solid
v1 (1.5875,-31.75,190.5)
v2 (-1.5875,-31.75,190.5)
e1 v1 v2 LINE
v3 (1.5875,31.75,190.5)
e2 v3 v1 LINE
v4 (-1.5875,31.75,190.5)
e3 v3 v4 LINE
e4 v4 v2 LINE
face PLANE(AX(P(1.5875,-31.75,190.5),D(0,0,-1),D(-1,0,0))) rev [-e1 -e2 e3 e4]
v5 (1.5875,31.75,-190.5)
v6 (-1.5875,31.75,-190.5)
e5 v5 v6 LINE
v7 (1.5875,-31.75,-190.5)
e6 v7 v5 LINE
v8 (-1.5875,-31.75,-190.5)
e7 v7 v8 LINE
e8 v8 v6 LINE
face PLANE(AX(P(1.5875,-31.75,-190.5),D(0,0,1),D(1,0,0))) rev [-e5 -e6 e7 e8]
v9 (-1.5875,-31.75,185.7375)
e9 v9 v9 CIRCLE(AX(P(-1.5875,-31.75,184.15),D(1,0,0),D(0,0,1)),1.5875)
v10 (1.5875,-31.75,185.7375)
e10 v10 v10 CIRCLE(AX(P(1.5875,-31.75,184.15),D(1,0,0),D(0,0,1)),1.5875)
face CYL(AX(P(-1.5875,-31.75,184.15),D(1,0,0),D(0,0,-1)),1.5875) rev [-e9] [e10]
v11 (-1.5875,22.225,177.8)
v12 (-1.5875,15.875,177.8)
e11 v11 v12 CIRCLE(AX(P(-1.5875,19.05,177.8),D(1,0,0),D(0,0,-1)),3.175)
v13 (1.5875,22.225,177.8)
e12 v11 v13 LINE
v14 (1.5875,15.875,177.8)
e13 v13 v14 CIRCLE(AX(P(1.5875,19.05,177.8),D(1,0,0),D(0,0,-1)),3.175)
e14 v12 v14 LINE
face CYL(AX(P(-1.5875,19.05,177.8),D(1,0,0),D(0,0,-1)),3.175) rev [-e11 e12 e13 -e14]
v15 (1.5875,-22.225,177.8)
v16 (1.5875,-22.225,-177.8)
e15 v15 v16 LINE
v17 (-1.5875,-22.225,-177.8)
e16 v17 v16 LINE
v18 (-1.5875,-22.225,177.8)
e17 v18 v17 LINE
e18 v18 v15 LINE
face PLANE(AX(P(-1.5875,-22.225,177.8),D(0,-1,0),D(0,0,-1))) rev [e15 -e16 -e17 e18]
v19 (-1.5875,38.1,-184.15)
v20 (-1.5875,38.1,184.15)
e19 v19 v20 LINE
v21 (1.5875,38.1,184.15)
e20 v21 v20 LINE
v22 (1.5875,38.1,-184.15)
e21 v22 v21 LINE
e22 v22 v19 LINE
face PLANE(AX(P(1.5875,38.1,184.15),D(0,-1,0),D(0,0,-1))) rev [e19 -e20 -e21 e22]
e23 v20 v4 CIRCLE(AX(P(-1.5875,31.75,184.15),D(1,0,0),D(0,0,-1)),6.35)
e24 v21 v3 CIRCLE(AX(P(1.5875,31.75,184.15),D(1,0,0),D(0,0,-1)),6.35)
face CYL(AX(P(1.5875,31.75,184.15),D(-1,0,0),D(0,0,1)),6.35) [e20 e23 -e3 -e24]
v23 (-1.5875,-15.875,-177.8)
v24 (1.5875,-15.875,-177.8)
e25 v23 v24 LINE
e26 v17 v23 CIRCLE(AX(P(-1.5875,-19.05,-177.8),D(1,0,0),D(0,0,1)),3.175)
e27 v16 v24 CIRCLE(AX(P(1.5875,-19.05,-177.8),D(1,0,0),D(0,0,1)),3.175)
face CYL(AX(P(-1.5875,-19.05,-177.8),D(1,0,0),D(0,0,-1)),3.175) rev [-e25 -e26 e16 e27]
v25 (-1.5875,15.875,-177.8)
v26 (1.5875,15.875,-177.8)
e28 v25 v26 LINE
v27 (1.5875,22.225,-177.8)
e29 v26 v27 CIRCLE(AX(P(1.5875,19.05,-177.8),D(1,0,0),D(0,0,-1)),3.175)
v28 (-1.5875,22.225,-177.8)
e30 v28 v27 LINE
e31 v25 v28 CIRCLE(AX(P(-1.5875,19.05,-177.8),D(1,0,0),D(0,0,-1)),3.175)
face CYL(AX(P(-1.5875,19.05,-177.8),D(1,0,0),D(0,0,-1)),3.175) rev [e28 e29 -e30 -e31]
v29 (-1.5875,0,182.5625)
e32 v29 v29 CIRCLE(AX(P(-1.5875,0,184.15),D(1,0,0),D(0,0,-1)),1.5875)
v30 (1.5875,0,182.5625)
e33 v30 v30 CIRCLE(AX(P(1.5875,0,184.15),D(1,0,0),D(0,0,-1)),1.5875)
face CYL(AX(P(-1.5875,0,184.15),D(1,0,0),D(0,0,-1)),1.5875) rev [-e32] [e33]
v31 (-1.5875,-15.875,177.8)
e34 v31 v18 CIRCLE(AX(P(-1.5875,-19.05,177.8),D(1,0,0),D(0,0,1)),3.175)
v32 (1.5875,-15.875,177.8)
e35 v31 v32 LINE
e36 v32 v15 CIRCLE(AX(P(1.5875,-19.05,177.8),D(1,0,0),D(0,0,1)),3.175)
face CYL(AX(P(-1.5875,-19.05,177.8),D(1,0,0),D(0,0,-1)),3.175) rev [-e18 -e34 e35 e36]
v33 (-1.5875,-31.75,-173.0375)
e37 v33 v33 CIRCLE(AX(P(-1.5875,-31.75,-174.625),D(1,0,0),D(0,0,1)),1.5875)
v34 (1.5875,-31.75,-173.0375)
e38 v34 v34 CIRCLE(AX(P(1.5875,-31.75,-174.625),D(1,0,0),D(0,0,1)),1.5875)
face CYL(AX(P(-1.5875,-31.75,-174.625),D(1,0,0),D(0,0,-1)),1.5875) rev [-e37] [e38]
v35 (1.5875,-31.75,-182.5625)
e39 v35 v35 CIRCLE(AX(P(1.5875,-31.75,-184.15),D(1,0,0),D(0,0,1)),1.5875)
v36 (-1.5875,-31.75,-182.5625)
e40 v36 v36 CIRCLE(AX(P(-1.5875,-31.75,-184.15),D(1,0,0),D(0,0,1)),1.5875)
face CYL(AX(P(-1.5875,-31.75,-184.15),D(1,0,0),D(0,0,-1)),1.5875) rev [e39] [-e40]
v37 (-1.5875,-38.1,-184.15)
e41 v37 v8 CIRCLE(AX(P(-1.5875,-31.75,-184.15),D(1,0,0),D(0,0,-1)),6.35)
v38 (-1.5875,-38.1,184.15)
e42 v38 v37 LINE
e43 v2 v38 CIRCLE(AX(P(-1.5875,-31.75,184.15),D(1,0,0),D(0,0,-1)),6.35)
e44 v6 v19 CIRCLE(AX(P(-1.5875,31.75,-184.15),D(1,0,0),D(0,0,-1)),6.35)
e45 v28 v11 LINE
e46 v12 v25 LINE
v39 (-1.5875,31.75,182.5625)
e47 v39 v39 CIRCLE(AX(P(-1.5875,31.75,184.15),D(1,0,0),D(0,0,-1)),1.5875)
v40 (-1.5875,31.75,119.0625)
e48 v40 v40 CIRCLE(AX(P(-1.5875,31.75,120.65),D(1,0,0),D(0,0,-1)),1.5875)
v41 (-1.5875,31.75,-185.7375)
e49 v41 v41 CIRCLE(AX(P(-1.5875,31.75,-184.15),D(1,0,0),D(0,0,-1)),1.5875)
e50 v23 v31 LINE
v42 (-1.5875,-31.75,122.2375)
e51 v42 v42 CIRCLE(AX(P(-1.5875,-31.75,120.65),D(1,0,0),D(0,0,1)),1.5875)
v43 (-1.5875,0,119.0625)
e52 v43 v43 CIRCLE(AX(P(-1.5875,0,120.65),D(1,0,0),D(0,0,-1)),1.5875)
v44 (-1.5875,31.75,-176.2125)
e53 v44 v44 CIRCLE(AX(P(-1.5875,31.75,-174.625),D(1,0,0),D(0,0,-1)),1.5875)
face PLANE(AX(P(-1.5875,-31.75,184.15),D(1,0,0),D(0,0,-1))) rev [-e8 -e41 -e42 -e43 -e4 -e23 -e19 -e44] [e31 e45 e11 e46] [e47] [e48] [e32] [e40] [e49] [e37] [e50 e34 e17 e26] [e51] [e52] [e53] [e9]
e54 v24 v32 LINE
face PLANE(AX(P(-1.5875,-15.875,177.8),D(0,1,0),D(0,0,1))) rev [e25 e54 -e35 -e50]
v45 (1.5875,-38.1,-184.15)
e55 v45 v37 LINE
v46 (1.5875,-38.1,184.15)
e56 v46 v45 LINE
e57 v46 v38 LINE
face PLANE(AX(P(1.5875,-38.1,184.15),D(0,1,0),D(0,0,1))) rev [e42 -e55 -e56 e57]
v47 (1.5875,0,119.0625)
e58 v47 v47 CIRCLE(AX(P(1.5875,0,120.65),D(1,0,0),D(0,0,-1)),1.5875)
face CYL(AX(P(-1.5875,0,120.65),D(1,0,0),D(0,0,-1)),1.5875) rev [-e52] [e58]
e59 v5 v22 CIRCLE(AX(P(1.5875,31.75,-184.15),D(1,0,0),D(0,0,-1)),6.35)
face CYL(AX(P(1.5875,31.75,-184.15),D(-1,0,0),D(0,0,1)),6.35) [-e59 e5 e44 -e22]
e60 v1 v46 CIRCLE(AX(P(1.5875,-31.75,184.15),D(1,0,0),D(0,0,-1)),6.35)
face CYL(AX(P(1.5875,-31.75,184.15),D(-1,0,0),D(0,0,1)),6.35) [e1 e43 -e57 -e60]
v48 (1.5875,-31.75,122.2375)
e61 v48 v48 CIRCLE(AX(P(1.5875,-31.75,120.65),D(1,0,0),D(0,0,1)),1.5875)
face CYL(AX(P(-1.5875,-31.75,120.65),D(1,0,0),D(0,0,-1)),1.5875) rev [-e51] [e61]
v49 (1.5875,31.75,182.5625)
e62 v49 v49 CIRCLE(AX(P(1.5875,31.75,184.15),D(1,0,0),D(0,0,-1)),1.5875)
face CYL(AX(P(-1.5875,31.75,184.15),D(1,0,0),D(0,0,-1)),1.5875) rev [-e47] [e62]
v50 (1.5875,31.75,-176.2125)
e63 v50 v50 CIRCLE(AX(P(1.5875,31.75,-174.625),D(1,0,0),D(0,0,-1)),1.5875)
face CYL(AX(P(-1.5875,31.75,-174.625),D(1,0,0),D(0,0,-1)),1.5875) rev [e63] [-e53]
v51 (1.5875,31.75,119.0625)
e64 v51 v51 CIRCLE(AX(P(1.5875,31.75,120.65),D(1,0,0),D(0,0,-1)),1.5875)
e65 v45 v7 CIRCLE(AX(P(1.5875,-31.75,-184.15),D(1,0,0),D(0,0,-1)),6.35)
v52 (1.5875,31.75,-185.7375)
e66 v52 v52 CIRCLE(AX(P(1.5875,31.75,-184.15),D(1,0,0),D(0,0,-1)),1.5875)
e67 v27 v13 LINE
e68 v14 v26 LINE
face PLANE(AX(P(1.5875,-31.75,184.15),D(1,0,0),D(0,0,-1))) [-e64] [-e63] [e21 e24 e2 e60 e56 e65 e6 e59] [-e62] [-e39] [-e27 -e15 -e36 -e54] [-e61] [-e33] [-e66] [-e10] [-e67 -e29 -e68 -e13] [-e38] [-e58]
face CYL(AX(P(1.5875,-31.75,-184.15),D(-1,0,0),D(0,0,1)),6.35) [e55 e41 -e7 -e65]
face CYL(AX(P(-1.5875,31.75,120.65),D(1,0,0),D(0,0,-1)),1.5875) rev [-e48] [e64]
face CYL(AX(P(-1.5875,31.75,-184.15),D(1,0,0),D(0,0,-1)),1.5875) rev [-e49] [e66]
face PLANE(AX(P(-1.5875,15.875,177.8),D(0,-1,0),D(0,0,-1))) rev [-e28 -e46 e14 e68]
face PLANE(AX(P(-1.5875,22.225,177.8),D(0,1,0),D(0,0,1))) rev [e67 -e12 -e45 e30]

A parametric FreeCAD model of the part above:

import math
import FreeCAD as App
import Part
import Sketcher
from FreeCAD import Vector
Q = App.Units.Quantity

doc = App.newDocument("Part")
params = doc.addObject("Spreadsheet::Sheet", "Params")
for row, (alias, value) in enumerate([
    ("sketch1_radius", "0.25 in"),
    ("sketch1_width", "2.5 in"),
    ("sketch1_height", "14.5 in"),
    ("pad1_length", "0.125 in"),
    ("sketch2_height", "14 in"),
    ("sketch2_radius", "0.125 in"),
    ("sketch3_diameter", "0.125 in"),
    ("sketch4_diameter", "0.125 in"),
], start=1):
    params.set(f"A{row}", alias)
    params.set(f"B{row}", "=" + value)
    params.setAlias(f"B{row}", alias)

body = doc.addObject("PartDesign::Body", "Body")

sketch1 = body.newObject("Sketcher::SketchObject", "Sketch")
sketch1.AttachmentSupport = (doc.getObject("YZ_Plane"), [""])
sketch1.MapMode = "FlatFace"
sketch1.addGeometry(Part.LineSegment(Vector(-38.1, 184.15, 0), Vector(-38.1, -184.15, 0)), False)
sketch1.addGeometry(Part.ArcOfCircle(Part.Circle(Vector(-31.75, -184.15, 0), Vector(0, 0, 1), 6.35), math.radians(180), math.radians(270)), False)
sketch1.addGeometry(Part.LineSegment(Vector(-31.75, -190.5, 0), Vector(31.75, -190.5, 0)), False)
sketch1.addGeometry(Part.ArcOfCircle(Part.Circle(Vector(31.75, -184.15, 0), Vector(0, 0, 1), 6.35), math.radians(-90), math.radians(0)), False)
sketch1.addGeometry(Part.LineSegment(Vector(38.1, -184.15, 0), Vector(38.1, 184.15, 0)), False)
sketch1.addGeometry(Part.ArcOfCircle(Part.Circle(Vector(31.75, 184.15, 0), Vector(0, 0, 1), 6.35), math.radians(0), math.radians(90)), False)
sketch1.addGeometry(Part.LineSegment(Vector(31.75, 190.5, 0), Vector(-31.75, 190.5, 0)), False)
sketch1.addGeometry(Part.ArcOfCircle(Part.Circle(Vector(-31.75, 184.15, 0), Vector(0, 0, 1), 6.35), math.radians(90), math.radians(180)), False)
sketch1.addConstraint(Sketcher.Constraint("Tangent", 0, 2, 1, 1))
sketch1.addConstraint(Sketcher.Constraint("Tangent", 1, 2, 2, 1))
sketch1.addConstraint(Sketcher.Constraint("Tangent", 2, 2, 3, 1))
sketch1.addConstraint(Sketcher.Constraint("Tangent", 3, 2, 4, 1))
sketch1.addConstraint(Sketcher.Constraint("Tangent", 4, 2, 5, 1))
sketch1.addConstraint(Sketcher.Constraint("Tangent", 5, 2, 6, 1))
sketch1.addConstraint(Sketcher.Constraint("Tangent", 6, 2, 7, 1))
sketch1.addConstraint(Sketcher.Constraint("Tangent", 7, 2, 0, 1))
sketch1.addConstraint(Sketcher.Constraint("Vertical", 0))
sketch1.addConstraint(Sketcher.Constraint("Horizontal", 2))
sketch1.addConstraint(Sketcher.Constraint("Vertical", 4))
sketch1.addConstraint(Sketcher.Constraint("Horizontal", 6))
sketch1.addConstraint(Sketcher.Constraint("Equal", 1, 3))
sketch1.addConstraint(Sketcher.Constraint("Equal", 3, 5))
sketch1.addConstraint(Sketcher.Constraint("Equal", 5, 7))
sketch1.addConstraint(Sketcher.Constraint("Symmetric", 1, 3, 5, 3, -1, 1))
sketch1.addConstraint(Sketcher.Constraint("Radius", 1, Q("0.25 in")))
sketch1.addConstraint(Sketcher.Constraint("DistanceX", 2, 1, 2, 2, Q("2.5 in")))
sketch1.addConstraint(Sketcher.Constraint("DistanceY", 0, 2, 0, 1, Q("14.5 in")))
sketch1.setExpression("Constraints[16]", "Params.sketch1_radius")
sketch1.setExpression("Constraints[17]", "Params.sketch1_width")
sketch1.setExpression("Constraints[18]", "Params.sketch1_height")
pad1 = body.newObject("PartDesign::Pad", "Pad")
pad1.Profile = sketch1
pad1.setExpression("Length", "Params.pad1_length")
pad1.Midplane = True

sketch2 = body.newObject("Sketcher::SketchObject", "Sketch001")
sketch2.AttachmentSupport = (doc.getObject("YZ_Plane"), [""])
sketch2.MapMode = "FlatFace"
sketch2.AttachmentOffset = App.Placement(Vector(0, 0, 0.0625 * 25.4), App.Rotation())
sketch2.addGeometry(Part.LineSegment(Vector(22.225, -177.8, 0), Vector(22.225, 177.8, 0)), False)
sketch2.addGeometry(Part.ArcOfCircle(Part.Circle(Vector(19.05, 177.8, 0), Vector(0, 0, 1), 3.175), math.radians(0), math.radians(180)), False)
sketch2.addGeometry(Part.LineSegment(Vector(15.875, 177.8, 0), Vector(15.875, -177.8, 0)), False)
sketch2.addGeometry(Part.ArcOfCircle(Part.Circle(Vector(19.05, -177.8, 0), Vector(0, 0, 1), 3.175), math.radians(180), math.radians(360)), False)
sketch2.addGeometry(Part.LineSegment(Vector(-22.225, 177.8, 0), Vector(-22.225, -177.8, 0)), False)
sketch2.addGeometry(Part.ArcOfCircle(Part.Circle(Vector(-19.05, -177.8, 0), Vector(0, 0, 1), 3.175), math.radians(180), math.radians(360)), False)
sketch2.addGeometry(Part.LineSegment(Vector(-15.875, -177.8, 0), Vector(-15.875, 177.8, 0)), False)
sketch2.addGeometry(Part.ArcOfCircle(Part.Circle(Vector(-19.05, 177.8, 0), Vector(0, 0, 1), 3.175), math.radians(0), math.radians(180)), False)
sketch2.addConstraint(Sketcher.Constraint("Tangent", 0, 2, 1, 1))
sketch2.addConstraint(Sketcher.Constraint("Tangent", 1, 2, 2, 1))
sketch2.addConstraint(Sketcher.Constraint("Tangent", 2, 2, 3, 1))
sketch2.addConstraint(Sketcher.Constraint("Tangent", 3, 2, 0, 1))
sketch2.addConstraint(Sketcher.Constraint("Tangent", 4, 2, 5, 1))
sketch2.addConstraint(Sketcher.Constraint("Tangent", 5, 2, 6, 1))
sketch2.addConstraint(Sketcher.Constraint("Tangent", 6, 2, 7, 1))
sketch2.addConstraint(Sketcher.Constraint("Tangent", 7, 2, 4, 1))
sketch2.addConstraint(Sketcher.Constraint("Vertical", 0))
sketch2.addConstraint(Sketcher.Constraint("Vertical", 2))
sketch2.addConstraint(Sketcher.Constraint("Vertical", 4))
sketch2.addConstraint(Sketcher.Constraint("Vertical", 6))
sketch2.addConstraint(Sketcher.Constraint("Equal", 3, 5))
sketch2.addConstraint(Sketcher.Constraint("Symmetric", 1, 3, 5, 3, -1, 1))
sketch2.addConstraint(Sketcher.Constraint("Horizontal", 3, 3, 5, 3))
sketch2.addConstraint(Sketcher.Constraint("Horizontal", 1, 3, 7, 3))
sketch2.addConstraint(Sketcher.Constraint("DistanceY", 0, 1, 0, 2, Q("14 in")))
sketch2.addConstraint(Sketcher.Constraint("Radius", 1, Q("0.125 in")))
sketch2.addConstraint(Sketcher.Constraint("DistanceX", 5, 3, 3, 3, Q("1.5 in")))
sketch2.setExpression("Constraints[16]", "Params.sketch2_height")
sketch2.setExpression("Constraints[17]", "Params.sketch2_radius")
pocket1 = body.newObject("PartDesign::Pocket", "Pocket")
pocket1.Profile = sketch2
pocket1.Type = "ThroughAll"

sketch3 = body.newObject("Sketcher::SketchObject", "Sketch002")
sketch3.AttachmentSupport = (doc.getObject("YZ_Plane"), [""])
sketch3.MapMode = "FlatFace"
sketch3.AttachmentOffset = App.Placement(Vector(0, 0, 0.0625 * 25.4), App.Rotation())
sketch3.addGeometry(Part.Circle(Vector(31.75, 184.15, 0), Vector(0, 0, 1), 1.5875), False)
sketch3.addGeometry(Part.Circle(Vector(31.75, 120.65, 0), Vector(0, 0, 1), 1.5875), False)
sketch3.addGeometry(Part.Circle(Vector(-31.75, 120.65, 0), Vector(0, 0, 1), 1.5875), False)
sketch3.addGeometry(Part.Circle(Vector(-31.75, 184.15, 0), Vector(0, 0, 1), 1.5875), False)
sketch3.addGeometry(Part.Circle(Vector(0, 184.15, 0), Vector(0, 0, 1), 1.5875), False)
sketch3.addGeometry(Part.Circle(Vector(0, 120.65, 0), Vector(0, 0, 1), 1.5875), False)
sketch3.addConstraint(Sketcher.Constraint("Equal", 0, 1))
sketch3.addConstraint(Sketcher.Constraint("Equal", 1, 2))
sketch3.addConstraint(Sketcher.Constraint("Equal", 2, 3))
sketch3.addConstraint(Sketcher.Constraint("Equal", 3, 4))
sketch3.addConstraint(Sketcher.Constraint("Equal", 4, 5))
sketch3.addConstraint(Sketcher.Constraint("Symmetric", 1, 3, 2, 3, -2))
sketch3.addConstraint(Sketcher.Constraint("Symmetric", 0, 3, 3, 3, -2))
sketch3.addConstraint(Sketcher.Constraint("PointOnObject", 4, 3, -2))
sketch3.addConstraint(Sketcher.Constraint("PointOnObject", 5, 3, -2))
sketch3.addConstraint(Sketcher.Constraint("Horizontal", 3, 3, 4, 3))
sketch3.addConstraint(Sketcher.Constraint("Horizontal", 2, 3, 5, 3))
sketch3.addConstraint(Sketcher.Constraint("Vertical", 0, 3, 1, 3))
sketch3.addConstraint(Sketcher.Constraint("Diameter", 0, Q("0.125 in")))
sketch3.addConstraint(Sketcher.Constraint("DistanceY", 1, 3, 0, 3, Q("2.5 in")))
sketch3.addConstraint(Sketcher.Constraint("DistanceX", 2, 3, 1, 3, Q("2.5 in")))
sketch3.addConstraint(Sketcher.Constraint("DistanceY", -1, 1, 0, 3, Q("7.25 in")))
sketch3.setExpression("Constraints[12]", "Params.sketch3_diameter")
pocket2 = body.newObject("PartDesign::Pocket", "Pocket001")
pocket2.Profile = sketch3
pocket2.Type = "ThroughAll"

sketch4 = body.newObject("Sketcher::SketchObject", "Sketch003")
sketch4.AttachmentSupport = (doc.getObject("YZ_Plane"), [""])
sketch4.MapMode = "FlatFace"
sketch4.AttachmentOffset = App.Placement(Vector(0, 0, 0.0625 * 25.4), App.Rotation())
sketch4.addGeometry(Part.Circle(Vector(31.75, -184.15, 0), Vector(0, 0, 1), 1.5875), False)
sketch4.addGeometry(Part.Circle(Vector(31.75, -174.625, 0), Vector(0, 0, 1), 1.5875), False)
sketch4.addGeometry(Part.Circle(Vector(-31.75, -174.625, 0), Vector(0, 0, 1), 1.5875), False)
sketch4.addGeometry(Part.Circle(Vector(-31.75, -184.15, 0), Vector(0, 0, 1), 1.5875), False)
sketch4.addConstraint(Sketcher.Constraint("Equal", 0, 1))
sketch4.addConstraint(Sketcher.Constraint("Equal", 1, 2))
sketch4.addConstraint(Sketcher.Constraint("Equal", 2, 3))
sketch4.addConstraint(Sketcher.Constraint("Symmetric", 1, 3, 2, 3, -2))
sketch4.addConstraint(Sketcher.Constraint("Symmetric", 0, 3, 3, 3, -2))
sketch4.addConstraint(Sketcher.Constraint("Vertical", 0, 3, 1, 3))
sketch4.addConstraint(Sketcher.Constraint("Diameter", 0, Q("0.125 in")))
sketch4.addConstraint(Sketcher.Constraint("DistanceX", 2, 3, 1, 3, Q("2.5 in")))
sketch4.addConstraint(Sketcher.Constraint("DistanceY", 0, 3, -1, 1, Q("7.25 in")))
sketch4.addConstraint(Sketcher.Constraint("DistanceY", 1, 3, -1, 1, Q("6.875 in")))
sketch4.setExpression("Constraints[6]", "Params.sketch4_diameter")
pocket3 = body.newObject("PartDesign::Pocket", "Pocket002")
pocket3.Profile = sketch4
pocket3.Type = "ThroughAll"

doc.recompute()
